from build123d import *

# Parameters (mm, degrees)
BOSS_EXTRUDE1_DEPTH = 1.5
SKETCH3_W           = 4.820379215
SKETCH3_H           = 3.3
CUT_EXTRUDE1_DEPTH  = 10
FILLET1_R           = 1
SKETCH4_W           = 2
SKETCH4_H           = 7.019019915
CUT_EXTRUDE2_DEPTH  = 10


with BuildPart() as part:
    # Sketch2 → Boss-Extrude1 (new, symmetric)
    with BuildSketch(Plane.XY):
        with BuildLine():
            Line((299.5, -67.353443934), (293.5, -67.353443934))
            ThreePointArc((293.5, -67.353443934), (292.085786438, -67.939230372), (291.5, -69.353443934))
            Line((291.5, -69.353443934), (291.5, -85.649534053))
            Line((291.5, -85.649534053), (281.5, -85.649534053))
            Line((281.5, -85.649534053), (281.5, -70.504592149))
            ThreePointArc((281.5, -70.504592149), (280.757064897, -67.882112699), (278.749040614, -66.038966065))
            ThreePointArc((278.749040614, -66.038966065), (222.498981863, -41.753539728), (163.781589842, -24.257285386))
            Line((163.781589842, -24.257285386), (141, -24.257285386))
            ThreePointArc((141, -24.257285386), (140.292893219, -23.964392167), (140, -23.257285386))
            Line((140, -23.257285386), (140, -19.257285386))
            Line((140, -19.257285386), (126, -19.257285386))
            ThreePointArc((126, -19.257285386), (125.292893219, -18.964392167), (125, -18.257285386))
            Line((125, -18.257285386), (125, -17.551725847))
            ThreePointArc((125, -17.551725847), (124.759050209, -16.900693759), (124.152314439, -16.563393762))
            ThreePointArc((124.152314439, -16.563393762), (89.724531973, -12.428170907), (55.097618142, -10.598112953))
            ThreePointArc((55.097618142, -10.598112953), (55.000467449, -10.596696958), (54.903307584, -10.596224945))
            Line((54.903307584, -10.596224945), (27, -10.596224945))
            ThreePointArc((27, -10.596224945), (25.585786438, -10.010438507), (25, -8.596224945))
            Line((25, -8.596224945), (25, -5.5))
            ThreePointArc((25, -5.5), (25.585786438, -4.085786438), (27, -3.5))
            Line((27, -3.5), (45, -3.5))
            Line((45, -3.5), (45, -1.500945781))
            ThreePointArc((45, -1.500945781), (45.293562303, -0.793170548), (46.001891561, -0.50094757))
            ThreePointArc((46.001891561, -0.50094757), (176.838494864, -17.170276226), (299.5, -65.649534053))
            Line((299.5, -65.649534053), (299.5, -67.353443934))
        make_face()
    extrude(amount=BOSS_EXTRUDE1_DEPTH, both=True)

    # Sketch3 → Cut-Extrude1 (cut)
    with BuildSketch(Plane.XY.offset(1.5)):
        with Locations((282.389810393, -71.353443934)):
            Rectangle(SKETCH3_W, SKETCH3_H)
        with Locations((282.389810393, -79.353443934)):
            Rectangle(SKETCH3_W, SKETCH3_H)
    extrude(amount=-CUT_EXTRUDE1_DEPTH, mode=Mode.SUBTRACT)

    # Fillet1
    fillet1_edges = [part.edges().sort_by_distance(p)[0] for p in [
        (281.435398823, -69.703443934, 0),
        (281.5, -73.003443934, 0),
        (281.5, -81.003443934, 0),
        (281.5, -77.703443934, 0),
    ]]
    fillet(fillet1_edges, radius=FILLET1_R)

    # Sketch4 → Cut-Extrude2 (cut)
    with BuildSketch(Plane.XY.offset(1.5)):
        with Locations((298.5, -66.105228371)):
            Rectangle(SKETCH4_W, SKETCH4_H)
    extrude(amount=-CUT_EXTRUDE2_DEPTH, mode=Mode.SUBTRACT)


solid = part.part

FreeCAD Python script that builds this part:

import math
import FreeCAD as App
import Part
import Sketcher
Q = App.Units.Quantity


def edges_at(feature, points):
    """Names of the edges that pass closest to the given points."""
    edges = feature.Shape.Edges
    near = lambda p: min(range(len(edges)), key=lambda i: edges[i].distToShape(Part.Vertex(*p))[0])
    return sorted({f"Edge{near(p) + 1}" for p in points})

doc = App.newDocument("Part")
body = doc.addObject("PartDesign::Body", "Body")

sketch1 = doc.addObject("Sketcher::SketchObject", "Sketch")
body.addObject(sketch1)
sketch1.AttachmentSupport = (doc.XY_Plane, [""])
sketch1.MapMode = "FlatFace"
sketch1.addGeometry(Part.LineSegment(App.Vector(293.5, -67.353444, 0), App.Vector(299.5, -67.353444, 0)), False)
sketch1.addGeometry(Part.LineSegment(App.Vector(299.5, -67.353444, 0), App.Vector(299.5, -65.649534, 0)), False)
sketch1.addGeometry(Part.ArcOfCircle(Part.Circle(App.Vector(45, -530.163894, 0), App.Vector(0, 0, 1), 529.663894), math.radians(61.282369), math.radians(89.891621)), False)
sketch1.addGeometry(Part.ArcOfCircle(Part.Circle(App.Vector(46, -1.500946, 0), App.Vector(0, 0, 1), 1), math.radians(89.891621), math.radians(180)), False)
sketch1.addGeometry(Part.LineSegment(App.Vector(45, -1.500946, 0), App.Vector(45, -3.5, 0)), False)
sketch1.addGeometry(Part.LineSegment(App.Vector(45, -3.5, 0), App.Vector(27, -3.5, 0)), False)
sketch1.addGeometry(Part.ArcOfCircle(Part.Circle(App.Vector(27, -5.5, 0), App.Vector(0, 0, 1), 2), math.radians(90), math.radians(180)), False)
sketch1.addGeometry(Part.LineSegment(App.Vector(25, -5.5, 0), App.Vector(25, -8.596225, 0)), False)
sketch1.addGeometry(Part.ArcOfCircle(Part.Circle(App.Vector(27, -8.596225, 0), App.Vector(0, 0, 1), 2), math.radians(-180), math.radians(-90)), False)
sketch1.addGeometry(Part.LineSegment(App.Vector(27, -10.596225, 0), App.Vector(54.903308, -10.596225, 0)), False)
sketch1.addGeometry(Part.ArcOfCircle(Part.Circle(App.Vector(54.903308, -20.596221, 0), App.Vector(0, 0, 1), 9.999996), math.radians(88.886612), math.radians(90)), False)
sketch1.addGeometry(Part.ArcOfCircle(Part.Circle(App.Vector(45, -530.163894, 0), App.Vector(0, 0, 1), 519.663894), math.radians(81.238924), math.radians(88.886612)), False)
sketch1.addGeometry(Part.ArcOfCircle(Part.Circle(App.Vector(124, -17.551726, 0), App.Vector(0, 0, 1), 1), math.radians(0), math.radians(81.238924)), False)
sketch1.addGeometry(Part.LineSegment(App.Vector(125, -17.551726, 0), App.Vector(125, -18.257285, 0)), False)
sketch1.addGeometry(Part.ArcOfCircle(Part.Circle(App.Vector(126, -18.257285, 0), App.Vector(0, 0, 1), 1), math.radians(-180), math.radians(-90)), False)
sketch1.addGeometry(Part.LineSegment(App.Vector(126, -19.257285, 0), App.Vector(140, -19.257285, 0)), False)
sketch1.addGeometry(Part.LineSegment(App.Vector(140, -19.257285, 0), App.Vector(140, -23.257285, 0)), False)
sketch1.addGeometry(Part.ArcOfCircle(Part.Circle(App.Vector(141, -23.257285, 0), App.Vector(0, 0, 1), 1), math.radians(-180), math.radians(-90)), False)
sketch1.addGeometry(Part.LineSegment(App.Vector(141, -24.257285, 0), App.Vector(163.78159, -24.257285, 0)), False)
sketch1.addGeometry(Part.ArcOfCircle(Part.Circle(App.Vector(45, -530.163894, 0), App.Vector(0, 0, 1), 519.663894), math.radians(63.268626), math.radians(76.786876)), False)
sketch1.addGeometry(Part.ArcOfCircle(Part.Circle(App.Vector(276.5, -70.504592, 0), App.Vector(0, 0, 1), 5), math.radians(0), math.radians(63.268626)), False)
sketch1.addGeometry(Part.LineSegment(App.Vector(281.5, -70.504592, 0), App.Vector(281.5, -85.649534, 0)), False)
sketch1.addGeometry(Part.LineSegment(App.Vector(281.5, -85.649534, 0), App.Vector(291.5, -85.649534, 0)), False)
sketch1.addGeometry(Part.LineSegment(App.Vector(291.5, -85.649534, 0), App.Vector(291.5, -69.353444, 0)), False)
sketch1.addGeometry(Part.ArcOfCircle(Part.Circle(App.Vector(293.5, -69.353444, 0), App.Vector(0, 0, 1), 2), math.radians(90), math.radians(180)), False)
sketch1.addConstraint(Sketcher.Constraint("Coincident", 0, 2, 1, 1))
sketch1.addConstraint(Sketcher.Constraint("Coincident", 1, 2, 2, 1))
sketch1.addConstraint(Sketcher.Constraint("Tangent", 2, 2, 3, 1))
sketch1.addConstraint(Sketcher.Constraint("Tangent", 3, 2, 4, 1))
sketch1.addConstraint(Sketcher.Constraint("Coincident", 4, 2, 5, 1))
sketch1.addConstraint(Sketcher.Constraint("Tangent", 5, 2, 6, 1))
sketch1.addConstraint(Sketcher.Constraint("Tangent", 6, 2, 7, 1))
sketch1.addConstraint(Sketcher.Constraint("Tangent", 7, 2, 8, 1))
sketch1.addConstraint(Sketcher.Constraint("Tangent", 8, 2, 9, 1))
sketch1.addConstraint(Sketcher.Constraint("Tangent", 9, 2, 10, 2))
sketch1.addConstraint(Sketcher.Constraint("Tangent", 10, 1, 11, 2))
sketch1.addConstraint(Sketcher.Constraint("Tangent", 11, 1, 12, 2))
sketch1.addConstraint(Sketcher.Constraint("Tangent", 12, 1, 13, 1))
sketch1.addConstraint(Sketcher.Constraint("Tangent", 13, 2, 14, 1))
sketch1.addConstraint(Sketcher.Constraint("Tangent", 14, 2, 15, 1))
sketch1.addConstraint(Sketcher.Constraint("Coincident", 15, 2, 16, 1))
sketch1.addConstraint(Sketcher.Constraint("Tangent", 16, 2, 17, 1))
sketch1.addConstraint(Sketcher.Constraint("Tangent", 17, 2, 18, 1))
sketch1.addConstraint(Sketcher.Constraint("Coincident", 18, 2, 19, 2))
sketch1.addConstraint(Sketcher.Constraint("Tangent", 19, 1, 20, 2))
sketch1.addConstraint(Sketcher.Constraint("Tangent", 20, 1, 21, 1))
sketch1.addConstraint(Sketcher.Constraint("Coincident", 21, 2, 22, 1))
sketch1.addConstraint(Sketcher.Constraint("Coincident", 22, 2, 23, 1))
sketch1.addConstraint(Sketcher.Constraint("Tangent", 23, 2, 24, 2))
sketch1.addConstraint(Sketcher.Constraint("Tangent", 24, 1, 0, 1))
sketch1.addConstraint(Sketcher.Constraint("Horizontal", 0))
sketch1.addConstraint(Sketcher.Constraint("Vertical", 1))
sketch1.addConstraint(Sketcher.Constraint("Vertical", 4))
sketch1.addConstraint(Sketcher.Constraint("Horizontal", 5))
sketch1.addConstraint(Sketcher.Constraint("Vertical", 7))
sketch1.addConstraint(Sketcher.Constraint("Horizontal", 9))
sketch1.addConstraint(Sketcher.Constraint("Vertical", 13))
sketch1.addConstraint(Sketcher.Constraint("Horizontal", 15))
sketch1.addConstraint(Sketcher.Constraint("Vertical", 16))
sketch1.addConstraint(Sketcher.Constraint("Horizontal", 18))
sketch1.addConstraint(Sketcher.Constraint("Vertical", 21))
sketch1.addConstraint(Sketcher.Constraint("Horizontal", 22))
sketch1.addConstraint(Sketcher.Constraint("Vertical", 23))
sketch1.addConstraint(Sketcher.Constraint("Coincident", 11, 3, 2, 3))
sketch1.addConstraint(Sketcher.Constraint("Coincident", 19, 3, 2, 3))
sketch1.addConstraint(Sketcher.Constraint("Equal", 6, 8))
sketch1.addConstraint(Sketcher.Constraint("Equal", 3, 12))
sketch1.addConstraint(Sketcher.Constraint("Equal", 12, 14))
sketch1.addConstraint(Sketcher.Constraint("Equal", 14, 17))
sketch1.addConstraint(Sketcher.Constraint("Equal", 11, 19))
sketch1.addConstraint(Sketcher.Constraint("Equal", 8, 24))
sketch1.addConstraint(Sketcher.Constraint("Vertical", 19, 3, 3, 2))
sketch1.addConstraint(Sketcher.Constraint("Radius", 3, Q("1 mm")))
sketch1.addConstraint(Sketcher.Constraint("Radius", 6, Q("2 mm")))
sketch1.addConstraint(Sketcher.Constraint("Radius", 20, Q("5 mm")))
sketch1.addConstraint(Sketcher.Constraint("DistanceX", 0, 1, 0, 2, Q("6 mm")))
sketch1.addConstraint(Sketcher.Constraint("DistanceX", 5, 2, 5, 1, Q("18 mm")))
sketch1.addConstraint(Sketcher.Constraint("DistanceX", 15, 1, 15, 2, Q("14 mm")))
sketch1.addConstraint(Sketcher.Constraint("DistanceX", 22, 1, 22, 2, Q("10 mm")))
sketch1.addConstraint(Sketcher.Constraint("DistanceY", 16, 2, 16, 1, Q("4 mm")))
sketch1.addConstraint(Sketcher.Constraint("DistanceX", -1, 1, 2, 3, Q("45 mm")))
sketch1.addConstraint(Sketcher.Constraint("DistanceX", -1, 1, 12, 3, Q("124 mm")))
sketch1.addConstraint(Sketcher.Constraint("DistanceY", 6, 3, -1, 1, Q("5.5 mm")))
sketch1.addConstraint(Sketcher.Constraint("DistanceX", -1, 1, 20, 3, Q("276.5 mm")))
sketch1.addConstraint(Sketcher.Constraint("Radius", 2, Q("529.663894 mm")))
sketch1.addConstraint(Sketcher.Constraint("Radius", 10, Q("9.999996 mm")))
sketch1.addConstraint(Sketcher.Constraint("Radius", 11, Q("519.663894 mm")))
sketch1.addConstraint(Sketcher.Constraint("DistanceX", 18, 1, 18, 2, Q("22.78159 mm")))
sketch1.addConstraint(Sketcher.Constraint("DistanceY", 1, 1, 1, 2, Q("1.70391 mm")))
sketch1.addConstraint(Sketcher.Constraint("DistanceY", 21, 2, 21, 1, Q("15.144942 mm")))
sketch1.addConstraint(Sketcher.Constraint("DistanceY", 12, 3, 8, 3, Q("8.955501 mm")))
sketch1.addConstraint(Sketcher.Constraint("DistanceY", 4, 2, 4, 1, Q("1.999054 mm")))
pad1 = doc.addObject("PartDesign::Pad", "Pad")
body.addObject(pad1)
pad1.Profile = sketch1
pad1.Length = 3
pad1.Midplane = True

sketch2 = doc.addObject("Sketcher::SketchObject", "Sketch001")
body.addObject(sketch2)
sketch2.AttachmentSupport = (doc.XY_Plane, [""])
sketch2.MapMode = "FlatFace"
sketch2.AttachmentOffset = App.Placement(App.Vector(0, 0, 1.5), App.Rotation())
sketch2.addGeometry(Part.LineSegment(App.Vector(279.979621, -69.703444, 0), App.Vector(279.979621, -73.003444, 0)), False)
sketch2.addGeometry(Part.LineSegment(App.Vector(279.979621, -73.003444, 0), App.Vector(284.8, -73.003444, 0)), False)
sketch2.addGeometry(Part.LineSegment(App.Vector(284.8, -73.003444, 0), App.Vector(284.8, -69.703444, 0)), False)
sketch2.addGeometry(Part.LineSegment(App.Vector(284.8, -69.703444, 0), App.Vector(279.979621, -69.703444, 0)), False)
sketch2.addGeometry(Part.LineSegment(App.Vector(279.979621, -77.703444, 0), App.Vector(279.979621, -81.003444, 0)), False)
sketch2.addGeometry(Part.LineSegment(App.Vector(279.979621, -81.003444, 0), App.Vector(284.8, -81.003444, 0)), False)
sketch2.addGeometry(Part.LineSegment(App.Vector(284.8, -81.003444, 0), App.Vector(284.8, -77.703444, 0)), False)
sketch2.addGeometry(Part.LineSegment(App.Vector(284.8, -77.703444, 0), App.Vector(279.979621, -77.703444, 0)), False)
sketch2.addConstraint(Sketcher.Constraint("Coincident", 0, 2, 1, 1))
sketch2.addConstraint(Sketcher.Constraint("Coincident", 1, 2, 2, 1))
sketch2.addConstraint(Sketcher.Constraint("Coincident", 2, 2, 3, 1))
sketch2.addConstraint(Sketcher.Constraint("Coincident", 3, 2, 0, 1))
sketch2.addConstraint(Sketcher.Constraint("Coincident", 4, 2, 5, 1))
sketch2.addConstraint(Sketcher.Constraint("Coincident", 5, 2, 6, 1))
sketch2.addConstraint(Sketcher.Constraint("Coincident", 6, 2, 7, 1))
sketch2.addConstraint(Sketcher.Constraint("Coincident", 7, 2, 4, 1))
sketch2.addConstraint(Sketcher.Constraint("Vertical", 0))
sketch2.addConstraint(Sketcher.Constraint("Horizontal", 1))
sketch2.addConstraint(Sketcher.Constraint("Vertical", 2))
sketch2.addConstraint(Sketcher.Constraint("Horizontal", 3))
sketch2.addConstraint(Sketcher.Constraint("Vertical", 4))
sketch2.addConstraint(Sketcher.Constraint("Horizontal", 5))
sketch2.addConstraint(Sketcher.Constraint("Vertical", 6))
sketch2.addConstraint(Sketcher.Constraint("Horizontal", 7))
sketch2.addConstraint(Sketcher.Constraint("Vertical", 3, 2, 4, 2))
sketch2.addConstraint(Sketcher.Constraint("Vertical", 2, 2, 5, 2))
sketch2.addConstraint(Sketcher.Constraint("Equal", 2, 4))
sketch2.addConstraint(Sketcher.Constraint("DistanceY", 0, 2, 0, 1, Q("3.3 mm")))
sketch2.addConstraint(Sketcher.Constraint("DistanceY", 4, 2, 0, 2, Q("8 mm")))
sketch2.addConstraint(Sketcher.Constraint("DistanceX", -1, 1, 1, 2, Q("284.8 mm")))
sketch2.addConstraint(Sketcher.Constraint("DistanceX", 1, 1, 1, 2, Q("4.820379 mm")))
sketch2.addConstraint(Sketcher.Constraint("DistanceY", 0, 2, -1, 1, Q("73.003444 mm")))
pocket1 = doc.addObject("PartDesign::Pocket", "Pocket")
body.addObject(pocket1)
pocket1.Profile = sketch2
pocket1.Length = 10
doc.recompute()

fillet = doc.addObject("PartDesign::Fillet", "Fillet")
body.addObject(fillet)
fillet.Base = (pocket1, edges_at(pocket1, [
    (281.435, -69.703, 0),
    (281.5, -73.003, 0),
    (281.5, -81.003, 0),
    (281.5, -77.703, 0),
]))
fillet.Radius = 1

sketch3 = doc.addObject("Sketcher::SketchObject", "Sketch002")
body.addObject(sketch3)
sketch3.AttachmentSupport = (doc.XY_Plane, [""])
sketch3.MapMode = "FlatFace"
sketch3.AttachmentOffset = App.Placement(App.Vector(0, 0, 1.5), App.Rotation())
sketch3.addGeometry(Part.LineSegment(App.Vector(297.5, -62.595718, 0), App.Vector(297.5, -69.614738, 0)), False)
sketch3.addGeometry(Part.LineSegment(App.Vector(297.5, -69.614738, 0), App.Vector(299.5, -69.614738, 0)), False)
sketch3.addGeometry(Part.LineSegment(App.Vector(299.5, -69.614738, 0), App.Vector(299.5, -62.595718, 0)), False)
sketch3.addGeometry(Part.LineSegment(App.Vector(299.5, -62.595718, 0), App.Vector(297.5, -62.595718, 0)), False)
sketch3.addConstraint(Sketcher.Constraint("Coincident", 0, 2, 1, 1))
sketch3.addConstraint(Sketcher.Constraint("Coincident", 1, 2, 2, 1))
sketch3.addConstraint(Sketcher.Constraint("Coincident", 2, 2, 3, 1))
sketch3.addConstraint(Sketcher.Constraint("Coincident", 3, 2, 0, 1))
sketch3.addConstraint(Sketcher.Constraint("Vertical", 0))
sketch3.addConstraint(Sketcher.Constraint("Horizontal", 1))
sketch3.addConstraint(Sketcher.Constraint("Vertical", 2))
sketch3.addConstraint(Sketcher.Constraint("Horizontal", 3))
sketch3.addConstraint(Sketcher.Constraint("DistanceX", 1, 1, 1, 2, Q("2 mm")))
sketch3.addConstraint(Sketcher.Constraint("DistanceX", -1, 1, 0, 2, Q("297.5 mm")))
sketch3.addConstraint(Sketcher.Constraint("DistanceY", 0, 2, 0, 1, Q("7.01902 mm")))
sketch3.addConstraint(Sketcher.Constraint("DistanceY", 0, 2, -1, 1, Q("69.614738 mm")))
pocket2 = doc.addObject("PartDesign::Pocket", "Pocket001")
body.addObject(pocket2)
pocket2.Profile = sketch3
pocket2.Length = 10

doc.recompute()
